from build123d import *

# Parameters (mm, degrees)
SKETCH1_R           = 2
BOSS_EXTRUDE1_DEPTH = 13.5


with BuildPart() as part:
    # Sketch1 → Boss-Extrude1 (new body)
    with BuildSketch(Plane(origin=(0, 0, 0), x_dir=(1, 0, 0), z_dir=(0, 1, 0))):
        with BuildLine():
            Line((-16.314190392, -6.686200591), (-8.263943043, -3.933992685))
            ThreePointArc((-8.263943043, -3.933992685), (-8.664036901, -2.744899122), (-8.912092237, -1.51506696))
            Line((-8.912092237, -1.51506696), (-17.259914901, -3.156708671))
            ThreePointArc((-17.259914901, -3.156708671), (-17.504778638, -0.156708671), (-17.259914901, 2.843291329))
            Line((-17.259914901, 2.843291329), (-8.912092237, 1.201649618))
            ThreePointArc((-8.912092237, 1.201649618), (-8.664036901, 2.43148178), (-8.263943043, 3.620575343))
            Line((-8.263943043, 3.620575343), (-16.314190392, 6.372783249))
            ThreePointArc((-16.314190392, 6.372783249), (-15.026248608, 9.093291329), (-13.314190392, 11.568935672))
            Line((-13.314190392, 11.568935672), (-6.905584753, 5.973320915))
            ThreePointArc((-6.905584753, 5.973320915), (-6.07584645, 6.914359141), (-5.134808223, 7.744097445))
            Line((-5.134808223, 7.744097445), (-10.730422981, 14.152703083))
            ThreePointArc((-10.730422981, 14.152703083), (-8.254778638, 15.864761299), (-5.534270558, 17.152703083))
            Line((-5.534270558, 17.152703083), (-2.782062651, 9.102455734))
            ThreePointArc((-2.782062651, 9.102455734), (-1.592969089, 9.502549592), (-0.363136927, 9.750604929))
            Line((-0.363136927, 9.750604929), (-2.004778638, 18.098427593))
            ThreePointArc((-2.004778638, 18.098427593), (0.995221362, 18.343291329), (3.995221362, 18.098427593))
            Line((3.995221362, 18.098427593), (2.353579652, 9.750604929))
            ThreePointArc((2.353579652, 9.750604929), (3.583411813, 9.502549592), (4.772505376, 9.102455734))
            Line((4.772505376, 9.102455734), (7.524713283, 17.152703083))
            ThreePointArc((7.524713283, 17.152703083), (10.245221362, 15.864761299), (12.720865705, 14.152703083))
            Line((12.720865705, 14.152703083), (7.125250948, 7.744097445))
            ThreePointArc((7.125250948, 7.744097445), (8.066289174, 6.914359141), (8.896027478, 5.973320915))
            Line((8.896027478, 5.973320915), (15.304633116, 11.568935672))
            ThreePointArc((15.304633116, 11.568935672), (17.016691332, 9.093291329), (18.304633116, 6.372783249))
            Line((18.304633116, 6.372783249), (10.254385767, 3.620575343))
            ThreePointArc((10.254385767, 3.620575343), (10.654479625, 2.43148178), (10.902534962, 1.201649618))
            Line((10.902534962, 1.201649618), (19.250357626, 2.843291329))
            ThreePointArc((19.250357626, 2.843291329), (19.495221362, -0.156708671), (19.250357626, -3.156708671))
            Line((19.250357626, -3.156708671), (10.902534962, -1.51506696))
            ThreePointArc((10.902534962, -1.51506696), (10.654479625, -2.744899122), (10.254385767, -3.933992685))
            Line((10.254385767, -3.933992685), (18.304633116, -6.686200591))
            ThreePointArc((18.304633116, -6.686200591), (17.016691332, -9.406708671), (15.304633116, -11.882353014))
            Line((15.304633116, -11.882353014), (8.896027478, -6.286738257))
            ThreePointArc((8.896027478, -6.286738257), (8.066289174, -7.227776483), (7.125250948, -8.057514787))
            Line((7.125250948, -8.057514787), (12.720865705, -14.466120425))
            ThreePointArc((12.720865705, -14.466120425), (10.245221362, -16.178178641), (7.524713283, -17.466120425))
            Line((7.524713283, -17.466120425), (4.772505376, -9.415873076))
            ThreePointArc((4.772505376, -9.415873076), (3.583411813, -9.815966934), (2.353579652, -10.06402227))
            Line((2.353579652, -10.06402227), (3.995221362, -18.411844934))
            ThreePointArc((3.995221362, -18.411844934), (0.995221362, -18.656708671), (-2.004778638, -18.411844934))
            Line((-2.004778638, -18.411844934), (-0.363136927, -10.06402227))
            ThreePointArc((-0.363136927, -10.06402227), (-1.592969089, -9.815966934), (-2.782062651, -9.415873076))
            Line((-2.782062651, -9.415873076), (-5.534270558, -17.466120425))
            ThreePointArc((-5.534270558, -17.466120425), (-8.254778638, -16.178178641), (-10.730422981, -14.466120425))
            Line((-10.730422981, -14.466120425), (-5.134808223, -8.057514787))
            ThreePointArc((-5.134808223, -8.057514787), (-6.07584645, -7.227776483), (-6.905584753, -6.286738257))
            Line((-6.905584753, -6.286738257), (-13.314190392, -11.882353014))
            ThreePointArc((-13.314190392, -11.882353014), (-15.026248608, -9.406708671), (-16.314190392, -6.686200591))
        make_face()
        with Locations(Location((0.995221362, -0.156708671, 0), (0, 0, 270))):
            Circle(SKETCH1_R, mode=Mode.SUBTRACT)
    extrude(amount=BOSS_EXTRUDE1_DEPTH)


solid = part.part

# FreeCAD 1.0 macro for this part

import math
import FreeCAD as App
import Part
import Sketcher
from FreeCAD import Vector

doc = App.newDocument("Part")
params = doc.addObject("Spreadsheet::Sheet", "Params")
for row, (alias, value) in enumerate([
    ("sketch1_diameter", "4 mm"),
    ("sketch1_radius", "10 mm"),
    ("sketch1_radius2", "18.5 mm"),
    ("pad1_length", "13.5 mm"),
], start=1):
    params.set(f"A{row}", alias)
    params.set(f"B{row}", "=" + value)
    params.setAlias(f"B{row}", alias)

body = doc.addObject("PartDesign::Body", "Body")

sketch1 = body.newObject("Sketcher::SketchObject", "Sketch")
sketch1.AttachmentSupport = (doc.getObject("XZ_Plane"), [""])
sketch1.MapMode = "FlatFace"
sketch1.addGeometry(Part.LineSegment(Vector(-8.3, 3.9, 0), Vector(-16.3, 6.7, 0)), False)
sketch1.addGeometry(Part.ArcOfCircle(Part.Circle(Vector(1, 0.2, 0), Vector(0, 0, 1), 18.5), math.radians(140.67), math.radians(159.33)), False)
sketch1.addGeometry(Part.LineSegment(Vector(-13.3, 11.9, 0), Vector(-6.9, 6.3, 0)), False)
sketch1.addGeometry(Part.ArcOfCircle(Part.Circle(Vector(1, 0.2, 0), Vector(0, 0, 1), 10), math.radians(127.81), math.radians(142.19)), False)
sketch1.addGeometry(Part.LineSegment(Vector(-5.1, 8.1, 0), Vector(-10.7, 14.5, 0)), False)
sketch1.addGeometry(Part.ArcOfCircle(Part.Circle(Vector(1, 0.2, 0), Vector(0, 0, 1), 18.5), math.radians(110.67), math.radians(129.33)), False)
sketch1.addGeometry(Part.LineSegment(Vector(-5.5, 17.5, 0), Vector(-2.8, 9.4, 0)), False)
sketch1.addGeometry(Part.ArcOfCircle(Part.Circle(Vector(1, 0.2, 0), Vector(0, 0, 1), 10), math.radians(97.81), math.radians(112.19)), False)
sketch1.addGeometry(Part.LineSegment(Vector(-0.4, 10.1, 0), Vector(-2, 18.4, 0)), False)
sketch1.addGeometry(Part.ArcOfCircle(Part.Circle(Vector(1, 0.2, 0), Vector(0, 0, 1), 18.5), math.radians(80.67), math.radians(99.33)), False)
sketch1.addGeometry(Part.LineSegment(Vector(4, 18.4, 0), Vector(2.4, 10.1, 0)), False)
sketch1.addGeometry(Part.ArcOfCircle(Part.Circle(Vector(1, 0.2, 0), Vector(0, 0, 1), 10), math.radians(67.81), math.radians(82.19)), False)
sketch1.addGeometry(Part.LineSegment(Vector(4.8, 9.4, 0), Vector(7.5, 17.5, 0)), False)
sketch1.addGeometry(Part.ArcOfCircle(Part.Circle(Vector(1, 0.2, 0), Vector(0, 0, 1), 18.5), math.radians(50.67), math.radians(69.33)), False)
sketch1.addGeometry(Part.LineSegment(Vector(12.7, 14.5, 0), Vector(7.1, 8.1, 0)), False)
sketch1.addGeometry(Part.ArcOfCircle(Part.Circle(Vector(1, 0.2, 0), Vector(0, 0, 1), 10), math.radians(37.81), math.radians(52.19)), False)
sketch1.addGeometry(Part.LineSegment(Vector(8.9, 6.3, 0), Vector(15.3, 11.9, 0)), False)
sketch1.addGeometry(Part.ArcOfCircle(Part.Circle(Vector(1, 0.2, 0), Vector(0, 0, 1), 18.5), math.radians(20.67), math.radians(39.33)), False)
sketch1.addGeometry(Part.LineSegment(Vector(18.3, 6.7, 0), Vector(10.3, 3.9, 0)), False)
sketch1.addGeometry(Part.ArcOfCircle(Part.Circle(Vector(1, 0.2, 0), Vector(0, 0, 1), 10), math.radians(7.81), math.radians(22.19)), False)
sketch1.addGeometry(Part.LineSegment(Vector(10.9, 1.5, 0), Vector(19.3, 3.2, 0)), False)
sketch1.addGeometry(Part.ArcOfCircle(Part.Circle(Vector(1, 0.2, 0), Vector(0, 0, 1), 18.5), math.radians(-9.33), math.radians(9.33)), False)
sketch1.addGeometry(Part.LineSegment(Vector(19.3, -2.8, 0), Vector(10.9, -1.2, 0)), False)
sketch1.addGeometry(Part.ArcOfCircle(Part.Circle(Vector(1, 0.2, 0), Vector(0, 0, 1), 10), math.radians(-22.19), math.radians(-7.81)), False)
sketch1.addGeometry(Part.LineSegment(Vector(10.3, -3.6, 0), Vector(18.3, -6.4, 0)), False)
sketch1.addGeometry(Part.ArcOfCircle(Part.Circle(Vector(1, 0.2, 0), Vector(0, 0, 1), 18.5), math.radians(-39.33), math.radians(-20.67)), False)
sketch1.addGeometry(Part.LineSegment(Vector(15.3, -11.6, 0), Vector(8.9, -6, 0)), False)
sketch1.addGeometry(Part.ArcOfCircle(Part.Circle(Vector(1, 0.2, 0), Vector(0, 0, 1), 10), math.radians(-52.19), math.radians(-37.81)), False)
sketch1.addGeometry(Part.LineSegment(Vector(7.1, -7.7, 0), Vector(12.7, -14.2, 0)), False)
sketch1.addGeometry(Part.ArcOfCircle(Part.Circle(Vector(1, 0.2, 0), Vector(0, 0, 1), 18.5), math.radians(-69.33), math.radians(-50.67)), False)
sketch1.addGeometry(Part.LineSegment(Vector(7.5, -17.2, 0), Vector(4.8, -9.1, 0)), False)
sketch1.addGeometry(Part.ArcOfCircle(Part.Circle(Vector(1, 0.2, 0), Vector(0, 0, 1), 10), math.radians(-82.19), math.radians(-67.81)), False)
sketch1.addGeometry(Part.LineSegment(Vector(2.4, -9.8, 0), Vector(4, -18.1, 0)), False)
sketch1.addGeometry(Part.ArcOfCircle(Part.Circle(Vector(1, 0.2, 0), Vector(0, 0, 1), 18.5), math.radians(-99.33), math.radians(-80.67)), False)
sketch1.addGeometry(Part.LineSegment(Vector(-2, -18.1, 0), Vector(-0.4, -9.8, 0)), False)
sketch1.addGeometry(Part.ArcOfCircle(Part.Circle(Vector(1, 0.2, 0), Vector(0, 0, 1), 10), math.radians(-112.19), math.radians(-97.81)), False)
sketch1.addGeometry(Part.LineSegment(Vector(-2.8, -9.1, 0), Vector(-5.5, -17.2, 0)), False)
sketch1.addGeometry(Part.ArcOfCircle(Part.Circle(Vector(1, 0.2, 0), Vector(0, 0, 1), 18.5), math.radians(-129.33), math.radians(-110.67)), False)
sketch1.addGeometry(Part.LineSegment(Vector(-10.7, -14.2, 0), Vector(-5.1, -7.7, 0)), False)
sketch1.addGeometry(Part.ArcOfCircle(Part.Circle(Vector(1, 0.2, 0), Vector(0, 0, 1), 10), math.radians(-142.19), math.radians(-127.81)), False)
sketch1.addGeometry(Part.LineSegment(Vector(-6.9, -6, 0), Vector(-13.3, -11.6, 0)), False)
sketch1.addGeometry(Part.ArcOfCircle(Part.Circle(Vector(1, 0.2, 0), Vector(0, 0, 1), 18.5), math.radians(-159.33), math.radians(-140.67)), False)
sketch1.addGeometry(Part.LineSegment(Vector(-16.3, -6.4, 0), Vector(-8.3, -3.6, 0)), False)
sketch1.addGeometry(Part.ArcOfCircle(Part.Circle(Vector(1, 0.2, 0), Vector(0, 0, 1), 10), math.radians(-172.19), math.radians(-157.81)), False)
sketch1.addGeometry(Part.LineSegment(Vector(-8.9, -1.2, 0), Vector(-17.3, -2.8, 0)), False)
sketch1.addGeometry(Part.ArcOfCircle(Part.Circle(Vector(1, 0.2, 0), Vector(0, 0, 1), 18.5), math.radians(170.67), math.radians(189.33)), False)
sketch1.addGeometry(Part.LineSegment(Vector(-17.3, 3.2, 0), Vector(-8.9, 1.5, 0)), False)
sketch1.addGeometry(Part.ArcOfCircle(Part.Circle(Vector(1, 0.2, 0), Vector(0, 0, 1), 10), math.radians(157.81), math.radians(172.19)), False)
sketch1.addGeometry(Part.Circle(Vector(1, 0.2, 0), Vector(0, 0, 1), 2), False)
sketch1.addConstraint(Sketcher.Constraint("Coincident", 0, 2, 1, 2))
sketch1.addConstraint(Sketcher.Constraint("Coincident", 1, 1, 2, 1))
sketch1.addConstraint(Sketcher.Constraint("Coincident", 2, 2, 3, 2))
sketch1.addConstraint(Sketcher.Constraint("Coincident", 3, 1, 4, 1))
sketch1.addConstraint(Sketcher.Constraint("Coincident", 4, 2, 5, 2))
sketch1.addConstraint(Sketcher.Constraint("Coincident", 5, 1, 6, 1))
sketch1.addConstraint(Sketcher.Constraint("Coincident", 6, 2, 7, 2))
sketch1.addConstraint(Sketcher.Constraint("Coincident", 7, 1, 8, 1))
sketch1.addConstraint(Sketcher.Constraint("Coincident", 8, 2, 9, 2))
sketch1.addConstraint(Sketcher.Constraint("Coincident", 9, 1, 10, 1))
sketch1.addConstraint(Sketcher.Constraint("Coincident", 10, 2, 11, 2))
sketch1.addConstraint(Sketcher.Constraint("Coincident", 11, 1, 12, 1))
sketch1.addConstraint(Sketcher.Constraint("Coincident", 12, 2, 13, 2))
sketch1.addConstraint(Sketcher.Constraint("Coincident", 13, 1, 14, 1))
sketch1.addConstraint(Sketcher.Constraint("Coincident", 14, 2, 15, 2))
sketch1.addConstraint(Sketcher.Constraint("Coincident", 15, 1, 16, 1))
sketch1.addConstraint(Sketcher.Constraint("Coincident", 16, 2, 17, 2))
sketch1.addConstraint(Sketcher.Constraint("Coincident", 17, 1, 18, 1))
sketch1.addConstraint(Sketcher.Constraint("Coincident", 18, 2, 19, 2))
sketch1.addConstraint(Sketcher.Constraint("Coincident", 19, 1, 20, 1))
sketch1.addConstraint(Sketcher.Constraint("Coincident", 20, 2, 21, 2))
sketch1.addConstraint(Sketcher.Constraint("Coincident", 21, 1, 22, 1))
sketch1.addConstraint(Sketcher.Constraint("Coincident", 22, 2, 23, 2))
sketch1.addConstraint(Sketcher.Constraint("Coincident", 23, 1, 24, 1))
sketch1.addConstraint(Sketcher.Constraint("Coincident", 24, 2, 25, 2))
sketch1.addConstraint(Sketcher.Constraint("Coincident", 25, 1, 26, 1))
sketch1.addConstraint(Sketcher.Constraint("Coincident", 26, 2, 27, 2))
sketch1.addConstraint(Sketcher.Constraint("Coincident", 27, 1, 28, 1))
sketch1.addConstraint(Sketcher.Constraint("Coincident", 28, 2, 29, 2))
sketch1.addConstraint(Sketcher.Constraint("Coincident", 29, 1, 30, 1))
sketch1.addConstraint(Sketcher.Constraint("Coincident", 30, 2, 31, 2))
sketch1.addConstraint(Sketcher.Constraint("Coincident", 31, 1, 32, 1))
sketch1.addConstraint(Sketcher.Constraint("Coincident", 32, 2, 33, 2))
sketch1.addConstraint(Sketcher.Constraint("Coincident", 33, 1, 34, 1))
sketch1.addConstraint(Sketcher.Constraint("Coincident", 34, 2, 35, 2))
sketch1.addConstraint(Sketcher.Constraint("Coincident", 35, 1, 36, 1))
sketch1.addConstraint(Sketcher.Constraint("Coincident", 36, 2, 37, 2))
sketch1.addConstraint(Sketcher.Constraint("Coincident", 37, 1, 38, 1))
sketch1.addConstraint(Sketcher.Constraint("Coincident", 38, 2, 39, 2))
sketch1.addConstraint(Sketcher.Constraint("Coincident", 39, 1, 40, 1))
sketch1.addConstraint(Sketcher.Constraint("Coincident", 40, 2, 41, 2))
sketch1.addConstraint(Sketcher.Constraint("Coincident", 41, 1, 42, 1))
sketch1.addConstraint(Sketcher.Constraint("Coincident", 42, 2, 43, 2))
sketch1.addConstraint(Sketcher.Constraint("Coincident", 43, 1, 44, 1))
sketch1.addConstraint(Sketcher.Constraint("Coincident", 44, 2, 45, 2))
sketch1.addConstraint(Sketcher.Constraint("Coincident", 45, 1, 46, 1))
sketch1.addConstraint(Sketcher.Constraint("Coincident", 46, 2, 47, 2))
sketch1.addConstraint(Sketcher.Constraint("Coincident", 47, 1, 0, 1))
sketch1.addConstraint(Sketcher.Constraint("Coincident", 3, 3, 1, 3))
sketch1.addConstraint(Sketcher.Constraint("Coincident", 5, 3, 1, 3))
sketch1.addConstraint(Sketcher.Constraint("Coincident", 7, 3, 1, 3))
sketch1.addConstraint(Sketcher.Constraint("Coincident", 9, 3, 1, 3))
sketch1.addConstraint(Sketcher.Constraint("Coincident", 11, 3, 1, 3))
sketch1.addConstraint(Sketcher.Constraint("Coincident", 13, 3, 1, 3))
sketch1.addConstraint(Sketcher.Constraint("Coincident", 15, 3, 1, 3))
sketch1.addConstraint(Sketcher.Constraint("Coincident", 17, 3, 1, 3))
sketch1.addConstraint(Sketcher.Constraint("Coincident", 19, 3, 1, 3))
sketch1.addConstraint(Sketcher.Constraint("Coincident", 21, 3, 1, 3))
sketch1.addConstraint(Sketcher.Constraint("Coincident", 23, 3, 1, 3))
sketch1.addConstraint(Sketcher.Constraint("Coincident", 25, 3, 1, 3))
sketch1.addConstraint(Sketcher.Constraint("Coincident", 27, 3, 1, 3))
sketch1.addConstraint(Sketcher.Constraint("Coincident", 29, 3, 1, 3))
sketch1.addConstraint(Sketcher.Constraint("Coincident", 31, 3, 1, 3))
sketch1.addConstraint(Sketcher.Constraint("Coincident", 33, 3, 1, 3))
sketch1.addConstraint(Sketcher.Constraint("Coincident", 35, 3, 1, 3))
sketch1.addConstraint(Sketcher.Constraint("Coincident", 37, 3, 1, 3))
sketch1.addConstraint(Sketcher.Constraint("Coincident", 39, 3, 1, 3))
sketch1.addConstraint(Sketcher.Constraint("Coincident", 41, 3, 1, 3))
sketch1.addConstraint(Sketcher.Constraint("Coincident", 43, 3, 1, 3))
sketch1.addConstraint(Sketcher.Constraint("Coincident", 45, 3, 1, 3))
sketch1.addConstraint(Sketcher.Constraint("Coincident", 47, 3, 1, 3))
sketch1.addConstraint(Sketcher.Constraint("Coincident", 48, 3, 1, 3))
sketch1.addConstraint(Sketcher.Constraint("Equal", 1, 5))
sketch1.addConstraint(Sketcher.Constraint("Equal", 3, 7))
sketch1.addConstraint(Sketcher.Constraint("Equal", 5, 9))
sketch1.addConstraint(Sketcher.Constraint("Equal", 7, 11))
sketch1.addConstraint(Sketcher.Constraint("Equal", 9, 13))
sketch1.addConstraint(Sketcher.Constraint("Equal", 11, 15))
sketch1.addConstraint(Sketcher.Constraint("Equal", 13, 17))
sketch1.addConstraint(Sketcher.Constraint("Equal", 15, 19))
sketch1.addConstraint(Sketcher.Constraint("Equal", 17, 21))
sketch1.addConstraint(Sketcher.Constraint("Equal", 19, 23))
sketch1.addConstraint(Sketcher.Constraint("Equal", 21, 25))
sketch1.addConstraint(Sketcher.Constraint("Equal", 23, 27))
sketch1.addConstraint(Sketcher.Constraint("Equal", 25, 29))
sketch1.addConstraint(Sketcher.Constraint("Equal", 27, 31))
sketch1.addConstraint(Sketcher.Constraint("Equal", 29, 33))
sketch1.addConstraint(Sketcher.Constraint("Equal", 31, 35))
sketch1.addConstraint(Sketcher.Constraint("Equal", 33, 37))
sketch1.addConstraint(Sketcher.Constraint("Equal", 35, 39))
sketch1.addConstraint(Sketcher.Constraint("Equal", 37, 41))
sketch1.addConstraint(Sketcher.Constraint("Equal", 39, 43))
sketch1.addConstraint(Sketcher.Constraint("Equal", 41, 45))
sketch1.addConstraint(Sketcher.Constraint("Equal", 43, 47))
sketch1.addConstraint(Sketcher.Constraint("Perpendicular", 0, 12))
sketch1.addConstraint(Sketcher.Constraint("Perpendicular", 2, 14))
sketch1.addConstraint(Sketcher.Constraint("Perpendicular", 4, 16))
sketch1.addConstraint(Sketcher.Constraint("Perpendicular", 6, 18))
sketch1.addConstraint(Sketcher.Constraint("Perpendicular", 8, 20))
sketch1.addConstraint(Sketcher.Constraint("Perpendicular", 10, 22))
sketch1.addConstraint(Sketcher.Constraint("Perpendicular", 12, 24))
sketch1.addConstraint(Sketcher.Constraint("Perpendicular", 14, 26))
sketch1.addConstraint(Sketcher.Constraint("Perpendicular", 16, 28))
sketch1.addConstraint(Sketcher.Constraint("Perpendicular", 18, 30))
sketch1.addConstraint(Sketcher.Constraint("Perpendicular", 20, 32))
sketch1.addConstraint(Sketcher.Constraint("Perpendicular", 22, 34))
sketch1.addConstraint(Sketcher.Constraint("Perpendicular", 24, 36))
sketch1.addConstraint(Sketcher.Constraint("Perpendicular", 26, 38))
sketch1.addConstraint(Sketcher.Constraint("Perpendicular", 28, 40))
sketch1.addConstraint(Sketcher.Constraint("Perpendicular", 30, 42))
sketch1.addConstraint(Sketcher.Constraint("Perpendicular", 32, 44))
sketch1.addConstraint(Sketcher.Constraint("Perpendicular", 34, 46))
sketch1.addConstraint(Sketcher.Constraint("Horizontal", 8, 2, 9, 1))
sketch1.addConstraint(Sketcher.Constraint("Horizontal", 7, 1, 10, 2))
sketch1.addConstraint(Sketcher.Constraint("Horizontal", 6, 2, 11, 1))
sketch1.addConstraint(Sketcher.Constraint("Horizontal", 5, 1, 12, 2))
sketch1.addConstraint(Sketcher.Constraint("Horizontal", 4, 2, 13, 1))
sketch1.addConstraint(Sketcher.Constraint("Horizontal", 3, 1, 14, 2))
sketch1.addConstraint(Sketcher.Constraint("Horizontal", 2, 2, 15, 1))
sketch1.addConstraint(Sketcher.Constraint("Horizontal", 0, 2, 17, 1))
sketch1.addConstraint(Sketcher.Constraint("Horizontal", 32, 2, 33, 1))
sketch1.addConstraint(Sketcher.Constraint("Horizontal", 30, 2, 35, 1))
sketch1.addConstraint(Sketcher.Constraint("Horizontal", 28, 2, 37, 1))
sketch1.addConstraint(Sketcher.Constraint("Horizontal", 26, 2, 39, 1))
sketch1.addConstraint(Sketcher.Constraint("Horizontal", 24, 2, 41, 1))
sketch1.addConstraint(Sketcher.Constraint("Horizontal", 22, 2, 43, 1))
sketch1.addConstraint(Sketcher.Constraint("Horizontal", 20, 2, 45, 1))
sketch1.addConstraint(Sketcher.Constraint("Vertical", 20, 2, 21, 1))
sketch1.addConstraint(Sketcher.Constraint("Vertical", 18, 2, 23, 1))
sketch1.addConstraint(Sketcher.Constraint("Vertical", 16, 2, 25, 1))
sketch1.addConstraint(Sketcher.Constraint("Vertical", 14, 2, 27, 1))
sketch1.addConstraint(Sketcher.Constraint("Vertical", 12, 2, 29, 1))
sketch1.addConstraint(Sketcher.Constraint("Vertical", 10, 2, 31, 1))
sketch1.addConstraint(Sketcher.Constraint("Equal", 0, 2))
sketch1.addConstraint(Sketcher.Constraint("Equal", 2, 4))
sketch1.addConstraint(Sketcher.Constraint("Equal", 4, 6))
sketch1.addConstraint(Sketcher.Constraint("Equal", 6, 8))
sketch1.addConstraint(Sketcher.Constraint("Equal", 18, 20))
sketch1.addConstraint(Sketcher.Constraint("Diameter", 48, 4.0))
sketch1.addConstraint(Sketcher.Constraint("Radius", 3, 10.0))
sketch1.addConstraint(Sketcher.Constraint("Radius", 1, 18.5))
sketch1.addConstraint(Sketcher.Constraint("DistanceY", -1, 1, 0, 2, 6.686201))
sketch1.addConstraint(Sketcher.Constraint("Distance", 0, 8.50771))
sketch1.addConstraint(Sketcher.Constraint("DistanceX", -1, 1, 1, 3, 0.995221))
sketch1.addConstraint(Sketcher.Constraint("DistanceY", -1, 1, 1, 3, 0.156709))
sketch1.addConstraint(Sketcher.Constraint("DistanceX", 1, 1, -1, 1, 13.31419))
sketch1.addConstraint(Sketcher.Constraint("DistanceX", 8, 2, -1, 1, 2.004779))
sketch1.setExpression("Constraints[138]", "Params.sketch1_diameter")
sketch1.setExpression("Constraints[139]", "Params.sketch1_radius")
sketch1.setExpression("Constraints[140]", "Params.sketch1_radius2")
pad1 = body.newObject("PartDesign::Pad", "Pad")
pad1.Profile = sketch1
pad1.setExpression("Length", "Params.pad1_length")
pad1.Reversed = True

doc.recompute()
